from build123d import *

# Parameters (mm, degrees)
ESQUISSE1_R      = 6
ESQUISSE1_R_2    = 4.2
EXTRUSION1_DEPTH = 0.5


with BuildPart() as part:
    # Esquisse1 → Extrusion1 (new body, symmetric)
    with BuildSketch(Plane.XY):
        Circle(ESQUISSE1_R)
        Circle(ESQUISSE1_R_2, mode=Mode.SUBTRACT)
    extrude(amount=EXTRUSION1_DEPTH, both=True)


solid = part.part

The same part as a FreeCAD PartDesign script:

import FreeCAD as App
import Part
import Sketcher
Q = App.Units.Quantity

doc = App.newDocument("Part")
body = doc.addObject("PartDesign::Body", "Body")

# Sketch on XY plane
sketch1 = body.newObject("Sketcher::SketchObject", "Sketch")
sketch1.AttachmentSupport = (doc.getObject("XY_Plane"), [""])
sketch1.MapMode = "FlatFace"
sketch1.addGeometry([
    Part.Circle(App.Vector(0, 0, 0), App.Vector(0, 0, 1), 6),
    Part.Circle(App.Vector(0, 0, 0), App.Vector(0, 0, 1), 4.2),
], False)
sketch1.addConstraint([
    Sketcher.Constraint("Coincident", 0, 3, -1, 1),
    Sketcher.Constraint("Coincident", 1, 3, -1, 1),
    Sketcher.Constraint("Diameter", 0, Q("12 mm")),
    Sketcher.Constraint("Diameter", 1, Q("8.4 mm")),
])
pad1 = body.newObject("PartDesign::Pad", "Pad")
pad1.Profile = sketch1
pad1.Length = 1
pad1.Midplane = True

doc.recompute()
